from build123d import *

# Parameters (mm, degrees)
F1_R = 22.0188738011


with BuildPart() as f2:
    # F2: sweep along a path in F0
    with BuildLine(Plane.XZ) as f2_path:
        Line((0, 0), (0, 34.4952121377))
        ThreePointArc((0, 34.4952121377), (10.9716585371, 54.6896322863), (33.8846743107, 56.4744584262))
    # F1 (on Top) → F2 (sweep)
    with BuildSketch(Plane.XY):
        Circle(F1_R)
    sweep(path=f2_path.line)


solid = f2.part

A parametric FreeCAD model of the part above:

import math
import FreeCAD as App
import Part
import Sketcher

doc = App.newDocument("Part")
body = doc.addObject("PartDesign::Body", "Body")

# Sketch on XY plane
sketch1 = body.newObject("Sketcher::SketchObject", "Sketch")
sketch1.AttachmentSupport = (doc.getObject("XY_Plane"), [""])
sketch1.MapMode = "FlatFace"
sketch1.addGeometry(Part.Circle(App.Vector(0, 0, 0), App.Vector(0, 0, 1), 22.018874), False)
sketch1.addConstraint(Sketcher.Constraint("Coincident", 0, 3, -1, 1))
sketch1.addConstraint(Sketcher.Constraint("Diameter", 0, 44.037748))

# Sketch on XZ plane
sketch2 = body.newObject("Sketcher::SketchObject", "Sketch001")
sketch2.AttachmentSupport = (doc.getObject("XZ_Plane"), [""])
sketch2.MapMode = "FlatFace"
sketch2.addGeometry(Part.LineSegment(App.Vector(0, 0, 0), App.Vector(0, 34.495212, 0)), False)
sketch2.addGeometry(Part.ArcOfCircle(Part.Circle(App.Vector(24.070741, 34.495212, 0), App.Vector(0, 0, 1), 24.070741), math.radians(65.938803), math.radians(180)), False)
sketch2.addConstraint(Sketcher.Constraint("Tangent", 0, 2, 1, 2))
sketch2.addConstraint(Sketcher.Constraint("Vertical", 0))
sketch2.addConstraint(Sketcher.Constraint("Coincident", 0, 1, -1, 1))
sketch2.addConstraint(Sketcher.Constraint("Radius", 1, 24.070741))
sketch2.addConstraint(Sketcher.Constraint("DistanceY", 0, 1, 0, 2, 34.495212))
sketch2.addConstraint(Sketcher.Constraint("DistanceY", -1, 1, 1, 1, 56.474458))
doc.recompute()

additivepipe = body.newObject("PartDesign::AdditivePipe", "AdditivePipe")
additivepipe.Profile = sketch1
additivepipe.Spine = (sketch2, ["Edge1", "Edge2"])

doc.recompute()
